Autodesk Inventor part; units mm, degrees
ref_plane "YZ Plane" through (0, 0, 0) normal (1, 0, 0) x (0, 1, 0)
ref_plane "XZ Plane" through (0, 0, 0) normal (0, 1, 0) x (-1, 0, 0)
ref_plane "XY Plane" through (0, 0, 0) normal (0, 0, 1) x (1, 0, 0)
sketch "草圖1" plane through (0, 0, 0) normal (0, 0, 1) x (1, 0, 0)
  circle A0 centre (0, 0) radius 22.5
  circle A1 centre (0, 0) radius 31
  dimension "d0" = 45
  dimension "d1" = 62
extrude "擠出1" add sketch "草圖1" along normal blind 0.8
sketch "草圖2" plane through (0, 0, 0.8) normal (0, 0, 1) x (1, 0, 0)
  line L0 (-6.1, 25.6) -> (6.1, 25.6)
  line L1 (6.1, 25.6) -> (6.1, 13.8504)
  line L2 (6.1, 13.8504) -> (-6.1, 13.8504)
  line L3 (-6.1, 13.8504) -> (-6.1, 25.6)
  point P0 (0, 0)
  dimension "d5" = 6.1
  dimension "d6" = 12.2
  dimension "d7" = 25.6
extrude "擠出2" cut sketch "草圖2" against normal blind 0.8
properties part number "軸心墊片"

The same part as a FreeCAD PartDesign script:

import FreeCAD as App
import Part
import Sketcher
from FreeCAD import Vector

doc = App.newDocument("Part")
params = doc.addObject("Spreadsheet::Sheet", "Params")
for row, (alias, value) in enumerate([
    ("sketch1_diameter", "62 mm"),
    ("sketch1_diameter2", "45 mm"),
    ("pad1_length", "0.8 mm"),
    ("sketch2_width", "12.2 mm"),
    ("pocket1_length", "0.8 mm"),
], start=1):
    params.set(f"A{row}", alias)
    params.set(f"B{row}", "=" + value)
    params.setAlias(f"B{row}", alias)

body = doc.addObject("PartDesign::Body", "Body")

# Sketch on XY plane
sketch1 = body.newObject("Sketcher::SketchObject", "Sketch")
sketch1.AttachmentSupport = (doc.getObject("XY_Plane"), [""])
sketch1.MapMode = "FlatFace"
sketch1.addGeometry([
    Part.Circle(Vector(0, 0, 0), Vector(0, 0, 1), 31),
    Part.Circle(Vector(0, 0, 0), Vector(0, 0, 1), 22),
], False)
sketch1.addConstraint([
    Sketcher.Constraint("Coincident", 0, 3, -1, 1),
    Sketcher.Constraint("Coincident", 1, 3, -1, 1),
    Sketcher.Constraint("Diameter", 0, 62.0),
    Sketcher.Constraint("Diameter", 1, 45.0),
])
sketch1.setExpression("Constraints[2]", "Params.sketch1_diameter")
sketch1.setExpression("Constraints[3]", "Params.sketch1_diameter2")
pad1 = body.newObject("PartDesign::Pad", "Pad")
pad1.Profile = sketch1
pad1.setExpression("Length", "Params.pad1_length")

# Sketch on XY plane
sketch2 = body.newObject("Sketcher::SketchObject", "Sketch001")
sketch2.AttachmentSupport = (doc.getObject("XY_Plane"), [""])
sketch2.MapMode = "FlatFace"
sketch2.AttachmentOffset = App.Placement(Vector(0, 0, 0.8), App.Rotation())
sketch2.addGeometry([
    Part.LineSegment(Vector(6, 26, 0), Vector(-6, 26, 0)),
    Part.LineSegment(Vector(-6, 26, 0), Vector(-6, 14, 0)),
    Part.LineSegment(Vector(-6, 14, 0), Vector(6, 14, 0)),
    Part.LineSegment(Vector(6, 14, 0), Vector(6, 26, 0)),
], False)
sketch2.addConstraint([
    Sketcher.Constraint("Coincident", 0, 2, 1, 1),
    Sketcher.Constraint("Coincident", 1, 2, 2, 1),
    Sketcher.Constraint("Coincident", 2, 2, 3, 1),
    Sketcher.Constraint("Coincident", 3, 2, 0, 1),
    Sketcher.Constraint("Horizontal", 0),
    Sketcher.Constraint("Vertical", 1),
    Sketcher.Constraint("Horizontal", 2),
    Sketcher.Constraint("Vertical", 3),
    Sketcher.Constraint("DistanceX", 0, 2, 0, 1, 12.2),
    Sketcher.Constraint("DistanceX", 0, 2, -1, 1, 6.1),
    Sketcher.Constraint("DistanceY", -1, 1, 0, 2, 25.6),
    Sketcher.Constraint("DistanceY", 1, 2, 1, 1, 11.7496),
])
sketch2.setExpression("Constraints[8]", "Params.sketch2_width")
pocket1 = body.newObject("PartDesign::Pocket", "Pocket")
pocket1.Profile = sketch2
pocket1.setExpression("Length", "Params.pocket1_length")

doc.recompute()
